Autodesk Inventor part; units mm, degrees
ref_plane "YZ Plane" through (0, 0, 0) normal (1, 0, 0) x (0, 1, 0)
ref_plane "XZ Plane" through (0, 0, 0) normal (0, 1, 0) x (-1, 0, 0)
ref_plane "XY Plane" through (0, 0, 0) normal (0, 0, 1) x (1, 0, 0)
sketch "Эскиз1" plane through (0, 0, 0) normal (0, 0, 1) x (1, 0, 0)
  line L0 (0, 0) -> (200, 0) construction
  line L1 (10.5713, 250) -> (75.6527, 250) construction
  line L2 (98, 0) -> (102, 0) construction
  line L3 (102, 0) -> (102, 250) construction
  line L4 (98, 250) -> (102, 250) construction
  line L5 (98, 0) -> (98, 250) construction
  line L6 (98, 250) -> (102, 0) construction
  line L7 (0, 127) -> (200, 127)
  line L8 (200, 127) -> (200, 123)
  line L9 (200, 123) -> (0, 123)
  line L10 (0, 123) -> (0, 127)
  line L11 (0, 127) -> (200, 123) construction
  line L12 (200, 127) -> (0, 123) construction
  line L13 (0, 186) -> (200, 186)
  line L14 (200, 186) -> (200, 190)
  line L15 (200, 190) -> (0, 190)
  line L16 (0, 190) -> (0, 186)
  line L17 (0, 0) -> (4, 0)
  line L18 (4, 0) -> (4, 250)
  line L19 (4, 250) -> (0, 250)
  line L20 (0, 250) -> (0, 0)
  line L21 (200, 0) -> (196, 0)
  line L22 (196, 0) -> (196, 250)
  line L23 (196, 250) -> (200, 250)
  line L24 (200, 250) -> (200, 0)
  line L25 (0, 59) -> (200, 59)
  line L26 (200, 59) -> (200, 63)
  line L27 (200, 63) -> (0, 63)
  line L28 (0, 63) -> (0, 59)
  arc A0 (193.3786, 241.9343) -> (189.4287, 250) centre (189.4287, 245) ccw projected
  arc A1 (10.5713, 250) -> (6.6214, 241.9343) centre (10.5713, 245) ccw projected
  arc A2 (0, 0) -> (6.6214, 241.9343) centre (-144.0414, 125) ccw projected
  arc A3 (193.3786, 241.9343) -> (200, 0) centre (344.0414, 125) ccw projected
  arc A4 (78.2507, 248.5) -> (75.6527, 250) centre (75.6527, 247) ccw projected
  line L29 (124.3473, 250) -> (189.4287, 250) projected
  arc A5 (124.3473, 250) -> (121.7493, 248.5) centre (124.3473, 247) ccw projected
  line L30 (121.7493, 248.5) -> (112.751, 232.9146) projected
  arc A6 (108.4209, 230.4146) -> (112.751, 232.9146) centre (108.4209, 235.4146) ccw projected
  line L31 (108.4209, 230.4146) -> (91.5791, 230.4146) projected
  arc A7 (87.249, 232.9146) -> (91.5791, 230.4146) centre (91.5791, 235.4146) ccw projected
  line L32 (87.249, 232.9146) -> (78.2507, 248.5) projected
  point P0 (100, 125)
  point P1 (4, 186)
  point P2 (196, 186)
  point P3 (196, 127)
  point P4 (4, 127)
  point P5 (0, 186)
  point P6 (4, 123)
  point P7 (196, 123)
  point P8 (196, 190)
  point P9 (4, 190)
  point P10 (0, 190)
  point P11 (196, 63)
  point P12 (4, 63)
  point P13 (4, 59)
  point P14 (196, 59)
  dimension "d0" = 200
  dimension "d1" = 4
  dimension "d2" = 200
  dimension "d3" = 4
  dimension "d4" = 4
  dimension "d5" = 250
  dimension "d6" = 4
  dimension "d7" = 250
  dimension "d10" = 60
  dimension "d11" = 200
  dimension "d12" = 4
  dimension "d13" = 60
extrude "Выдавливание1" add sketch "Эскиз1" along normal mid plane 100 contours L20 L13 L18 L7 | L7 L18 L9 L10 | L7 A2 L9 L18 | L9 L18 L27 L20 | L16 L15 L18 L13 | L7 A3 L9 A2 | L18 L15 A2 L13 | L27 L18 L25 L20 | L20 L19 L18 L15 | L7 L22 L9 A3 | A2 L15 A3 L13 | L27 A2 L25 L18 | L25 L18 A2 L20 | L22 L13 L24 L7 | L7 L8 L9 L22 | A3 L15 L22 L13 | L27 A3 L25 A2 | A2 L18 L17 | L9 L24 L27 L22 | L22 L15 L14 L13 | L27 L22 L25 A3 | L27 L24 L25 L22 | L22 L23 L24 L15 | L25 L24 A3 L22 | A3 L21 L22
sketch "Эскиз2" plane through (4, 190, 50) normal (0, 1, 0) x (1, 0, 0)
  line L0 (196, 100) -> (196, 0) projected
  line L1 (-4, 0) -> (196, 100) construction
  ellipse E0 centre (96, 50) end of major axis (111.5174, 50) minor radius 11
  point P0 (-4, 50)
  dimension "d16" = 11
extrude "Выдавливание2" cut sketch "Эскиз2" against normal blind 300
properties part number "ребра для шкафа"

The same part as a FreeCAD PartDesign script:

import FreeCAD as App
import Part
import Sketcher

V = App.Vector

doc = App.newDocument("Part")
body = doc.addObject("PartDesign::Body", "Body")

sketch1 = body.newObject("Sketcher::SketchObject", "Sketch")
sketch1.AttachmentSupport = (doc.getObject("XY_Plane"), [""])
sketch1.MapMode = "FlatFace"
sketch1.addGeometry(Part.LineSegment(V(0, 0, 0), V(4, 0, 0)), False)
sketch1.addGeometry(Part.LineSegment(V(4, 0, 0), V(4, 59, 0)), False)
sketch1.addGeometry(Part.LineSegment(V(4, 59, 0), V(196, 59, 0)), False)
sketch1.addGeometry(Part.LineSegment(V(196, 59, 0), V(196, 0, 0)), False)
sketch1.addGeometry(Part.LineSegment(V(196, 0, 0), V(200, 0, 0)), False)
sketch1.addGeometry(Part.LineSegment(V(200, 0, 0), V(200, 250, 0)), False)
sketch1.addGeometry(Part.LineSegment(V(200, 250, 0), V(196, 250, 0)), False)
sketch1.addGeometry(Part.LineSegment(V(196, 250, 0), V(196, 190, 0)), False)
sketch1.addGeometry(Part.LineSegment(V(196, 190, 0), V(4, 190, 0)), False)
sketch1.addGeometry(Part.LineSegment(V(4, 190, 0), V(4, 250, 0)), False)
sketch1.addGeometry(Part.LineSegment(V(4, 250, 0), V(0, 250, 0)), False)
sketch1.addGeometry(Part.LineSegment(V(0, 250, 0), V(0, 0, 0)), False)
sketch1.addGeometry(Part.LineSegment(V(4, 127, 0), V(4, 186, 0)), False)
sketch1.addGeometry(Part.LineSegment(V(4, 186, 0), V(196, 186, 0)), False)
sketch1.addGeometry(Part.LineSegment(V(196, 186, 0), V(196, 127, 0)), False)
sketch1.addGeometry(Part.LineSegment(V(196, 127, 0), V(4, 127, 0)), False)
sketch1.addGeometry(Part.LineSegment(V(4, 123, 0), V(196, 123, 0)), False)
sketch1.addGeometry(Part.LineSegment(V(196, 123, 0), V(196, 63, 0)), False)
sketch1.addGeometry(Part.LineSegment(V(196, 63, 0), V(4, 63, 0)), False)
sketch1.addGeometry(Part.LineSegment(V(4, 63, 0), V(4, 123, 0)), False)
sketch1.addConstraint(Sketcher.Constraint("Coincident", 0, 2, 1, 1))
sketch1.addConstraint(Sketcher.Constraint("Coincident", 1, 2, 2, 1))
sketch1.addConstraint(Sketcher.Constraint("Coincident", 2, 2, 3, 1))
sketch1.addConstraint(Sketcher.Constraint("Coincident", 3, 2, 4, 1))
sketch1.addConstraint(Sketcher.Constraint("Coincident", 4, 2, 5, 1))
sketch1.addConstraint(Sketcher.Constraint("Coincident", 5, 2, 6, 1))
sketch1.addConstraint(Sketcher.Constraint("Coincident", 6, 2, 7, 1))
sketch1.addConstraint(Sketcher.Constraint("Coincident", 7, 2, 8, 1))
sketch1.addConstraint(Sketcher.Constraint("Coincident", 8, 2, 9, 1))
sketch1.addConstraint(Sketcher.Constraint("Coincident", 9, 2, 10, 1))
sketch1.addConstraint(Sketcher.Constraint("Coincident", 10, 2, 11, 1))
sketch1.addConstraint(Sketcher.Constraint("Coincident", 11, 2, 0, 1))
sketch1.addConstraint(Sketcher.Constraint("Coincident", 12, 2, 13, 1))
sketch1.addConstraint(Sketcher.Constraint("Coincident", 13, 2, 14, 1))
sketch1.addConstraint(Sketcher.Constraint("Coincident", 14, 2, 15, 1))
sketch1.addConstraint(Sketcher.Constraint("Coincident", 15, 2, 12, 1))
sketch1.addConstraint(Sketcher.Constraint("Coincident", 16, 2, 17, 1))
sketch1.addConstraint(Sketcher.Constraint("Coincident", 17, 2, 18, 1))
sketch1.addConstraint(Sketcher.Constraint("Coincident", 18, 2, 19, 1))
sketch1.addConstraint(Sketcher.Constraint("Coincident", 19, 2, 16, 1))
sketch1.addConstraint(Sketcher.Constraint("Horizontal", 0))
sketch1.addConstraint(Sketcher.Constraint("Vertical", 1))
sketch1.addConstraint(Sketcher.Constraint("Horizontal", 2))
sketch1.addConstraint(Sketcher.Constraint("Vertical", 3))
sketch1.addConstraint(Sketcher.Constraint("Horizontal", 4))
sketch1.addConstraint(Sketcher.Constraint("Vertical", 5))
sketch1.addConstraint(Sketcher.Constraint("Horizontal", 6))
sketch1.addConstraint(Sketcher.Constraint("Vertical", 7))
sketch1.addConstraint(Sketcher.Constraint("Horizontal", 8))
sketch1.addConstraint(Sketcher.Constraint("Vertical", 9))
sketch1.addConstraint(Sketcher.Constraint("Horizontal", 10))
sketch1.addConstraint(Sketcher.Constraint("Vertical", 11))
sketch1.addConstraint(Sketcher.Constraint("Vertical", 12))
sketch1.addConstraint(Sketcher.Constraint("Horizontal", 13))
sketch1.addConstraint(Sketcher.Constraint("Vertical", 14))
sketch1.addConstraint(Sketcher.Constraint("Horizontal", 15))
sketch1.addConstraint(Sketcher.Constraint("Horizontal", 16))
sketch1.addConstraint(Sketcher.Constraint("Vertical", 17))
sketch1.addConstraint(Sketcher.Constraint("Horizontal", 18))
sketch1.addConstraint(Sketcher.Constraint("Vertical", 19))
sketch1.addConstraint(Sketcher.Constraint("Coincident", 11, 2, -1, 1))
sketch1.addConstraint(Sketcher.Constraint("PointOnObject", 3, 2, -1))
sketch1.addConstraint(Sketcher.Constraint("Horizontal", 6, 2, 9, 2))
sketch1.addConstraint(Sketcher.Constraint("Vertical", 3, 2, 6, 2))
sketch1.addConstraint(Sketcher.Constraint("Vertical", 1, 2, 8, 2))
sketch1.addConstraint(Sketcher.Constraint("Vertical", 9, 2, 12, 2))
sketch1.addConstraint(Sketcher.Constraint("Vertical", 7, 2, 13, 2))
sketch1.addConstraint(Sketcher.Constraint("Vertical", 14, 2, 16, 2))
sketch1.addConstraint(Sketcher.Constraint("Vertical", 15, 2, 18, 2))
sketch1.addConstraint(Sketcher.Constraint("Equal", 0, 4))
sketch1.addConstraint(Sketcher.Constraint("Equal", 3, 12))
sketch1.addConstraint(Sketcher.Constraint("Equal", 9, 17))
sketch1.addConstraint(Sketcher.Constraint("DistanceX", 0, 1, 0, 2, 4.0))
sketch1.addConstraint(Sketcher.Constraint("DistanceY", 5, 1, 5, 2, 250.0))
sketch1.addConstraint(Sketcher.Constraint("DistanceY", 7, 2, 7, 1, 60.0))
sketch1.addConstraint(Sketcher.Constraint("DistanceX", -1, 1, 4, 2, 200.0))
sketch1.addConstraint(Sketcher.Constraint("DistanceY", 12, 2, 8, 2, 4.0))
sketch1.addConstraint(Sketcher.Constraint("DistanceY", 16, 2, 14, 2, 4.0))
sketch1.addConstraint(Sketcher.Constraint("DistanceY", 2, 2, 17, 2, 4.0))
pad1 = body.newObject("PartDesign::Pad", "Pad")
pad1.Profile = sketch1
pad1.Length = 100
pad1.Midplane = True

sketch2 = body.newObject("Sketcher::SketchObject", "Sketch001")
sketch2.AttachmentSupport = (doc.getObject("XZ_Plane"), [""])
sketch2.MapMode = "FlatFace"
sketch2.AttachmentOffset = App.Placement(V(0, 0, -190), App.Rotation())
sketch2.addGeometry(Part.Ellipse(V(115.5174, 0, 0), V(100, 11, 0), V(100, 0, 0)), False)
sketch2.addConstraint(Sketcher.Constraint("Block", 0))
pocket1 = body.newObject("PartDesign::Pocket", "Pocket")
pocket1.Profile = sketch2
pocket1.Length = 300
pocket1.Reversed = True

doc.recompute()
